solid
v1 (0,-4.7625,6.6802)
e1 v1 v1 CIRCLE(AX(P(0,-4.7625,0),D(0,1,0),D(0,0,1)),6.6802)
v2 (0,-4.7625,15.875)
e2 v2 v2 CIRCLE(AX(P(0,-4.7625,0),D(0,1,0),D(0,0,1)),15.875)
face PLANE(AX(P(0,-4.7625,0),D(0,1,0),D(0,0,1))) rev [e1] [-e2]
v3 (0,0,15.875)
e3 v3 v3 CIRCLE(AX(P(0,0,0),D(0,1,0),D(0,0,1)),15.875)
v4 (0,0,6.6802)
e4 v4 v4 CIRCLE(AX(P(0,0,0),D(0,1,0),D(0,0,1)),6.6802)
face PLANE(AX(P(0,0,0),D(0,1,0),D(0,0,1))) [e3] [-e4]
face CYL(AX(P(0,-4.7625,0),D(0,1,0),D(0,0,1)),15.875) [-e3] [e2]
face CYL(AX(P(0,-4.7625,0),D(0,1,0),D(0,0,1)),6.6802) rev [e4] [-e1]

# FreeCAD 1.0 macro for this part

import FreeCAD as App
import Part
import Sketcher

V = App.Vector
Q = App.Units.Quantity

doc = App.newDocument("Part")
body = doc.addObject("PartDesign::Body", "Body")

sketch1 = body.newObject("Sketcher::SketchObject", "Sketch")
sketch1.AttachmentSupport = (doc.getObject("XZ_Plane"), [""])
sketch1.MapMode = "FlatFace"
sketch1.addGeometry([
    Part.Circle(V(0, 0, 0), V(0, 0, 1), 15.875),
    Part.Circle(V(0, 0, 0), V(0, 0, 1), 6.6802),
], False)
sketch1.addConstraint([
    Sketcher.Constraint("Coincident", 0, 3, -1, 1),
    Sketcher.Constraint("Coincident", 1, 3, -1, 1),
    Sketcher.Constraint("Diameter", 0, Q("1.25 in")),
    Sketcher.Constraint("Diameter", 1, Q("0.526 in")),
])
pad1 = body.newObject("PartDesign::Pad", "Pad")
pad1.Profile = sketch1
pad1.Length = Q("0.1875 in")

doc.recompute()
